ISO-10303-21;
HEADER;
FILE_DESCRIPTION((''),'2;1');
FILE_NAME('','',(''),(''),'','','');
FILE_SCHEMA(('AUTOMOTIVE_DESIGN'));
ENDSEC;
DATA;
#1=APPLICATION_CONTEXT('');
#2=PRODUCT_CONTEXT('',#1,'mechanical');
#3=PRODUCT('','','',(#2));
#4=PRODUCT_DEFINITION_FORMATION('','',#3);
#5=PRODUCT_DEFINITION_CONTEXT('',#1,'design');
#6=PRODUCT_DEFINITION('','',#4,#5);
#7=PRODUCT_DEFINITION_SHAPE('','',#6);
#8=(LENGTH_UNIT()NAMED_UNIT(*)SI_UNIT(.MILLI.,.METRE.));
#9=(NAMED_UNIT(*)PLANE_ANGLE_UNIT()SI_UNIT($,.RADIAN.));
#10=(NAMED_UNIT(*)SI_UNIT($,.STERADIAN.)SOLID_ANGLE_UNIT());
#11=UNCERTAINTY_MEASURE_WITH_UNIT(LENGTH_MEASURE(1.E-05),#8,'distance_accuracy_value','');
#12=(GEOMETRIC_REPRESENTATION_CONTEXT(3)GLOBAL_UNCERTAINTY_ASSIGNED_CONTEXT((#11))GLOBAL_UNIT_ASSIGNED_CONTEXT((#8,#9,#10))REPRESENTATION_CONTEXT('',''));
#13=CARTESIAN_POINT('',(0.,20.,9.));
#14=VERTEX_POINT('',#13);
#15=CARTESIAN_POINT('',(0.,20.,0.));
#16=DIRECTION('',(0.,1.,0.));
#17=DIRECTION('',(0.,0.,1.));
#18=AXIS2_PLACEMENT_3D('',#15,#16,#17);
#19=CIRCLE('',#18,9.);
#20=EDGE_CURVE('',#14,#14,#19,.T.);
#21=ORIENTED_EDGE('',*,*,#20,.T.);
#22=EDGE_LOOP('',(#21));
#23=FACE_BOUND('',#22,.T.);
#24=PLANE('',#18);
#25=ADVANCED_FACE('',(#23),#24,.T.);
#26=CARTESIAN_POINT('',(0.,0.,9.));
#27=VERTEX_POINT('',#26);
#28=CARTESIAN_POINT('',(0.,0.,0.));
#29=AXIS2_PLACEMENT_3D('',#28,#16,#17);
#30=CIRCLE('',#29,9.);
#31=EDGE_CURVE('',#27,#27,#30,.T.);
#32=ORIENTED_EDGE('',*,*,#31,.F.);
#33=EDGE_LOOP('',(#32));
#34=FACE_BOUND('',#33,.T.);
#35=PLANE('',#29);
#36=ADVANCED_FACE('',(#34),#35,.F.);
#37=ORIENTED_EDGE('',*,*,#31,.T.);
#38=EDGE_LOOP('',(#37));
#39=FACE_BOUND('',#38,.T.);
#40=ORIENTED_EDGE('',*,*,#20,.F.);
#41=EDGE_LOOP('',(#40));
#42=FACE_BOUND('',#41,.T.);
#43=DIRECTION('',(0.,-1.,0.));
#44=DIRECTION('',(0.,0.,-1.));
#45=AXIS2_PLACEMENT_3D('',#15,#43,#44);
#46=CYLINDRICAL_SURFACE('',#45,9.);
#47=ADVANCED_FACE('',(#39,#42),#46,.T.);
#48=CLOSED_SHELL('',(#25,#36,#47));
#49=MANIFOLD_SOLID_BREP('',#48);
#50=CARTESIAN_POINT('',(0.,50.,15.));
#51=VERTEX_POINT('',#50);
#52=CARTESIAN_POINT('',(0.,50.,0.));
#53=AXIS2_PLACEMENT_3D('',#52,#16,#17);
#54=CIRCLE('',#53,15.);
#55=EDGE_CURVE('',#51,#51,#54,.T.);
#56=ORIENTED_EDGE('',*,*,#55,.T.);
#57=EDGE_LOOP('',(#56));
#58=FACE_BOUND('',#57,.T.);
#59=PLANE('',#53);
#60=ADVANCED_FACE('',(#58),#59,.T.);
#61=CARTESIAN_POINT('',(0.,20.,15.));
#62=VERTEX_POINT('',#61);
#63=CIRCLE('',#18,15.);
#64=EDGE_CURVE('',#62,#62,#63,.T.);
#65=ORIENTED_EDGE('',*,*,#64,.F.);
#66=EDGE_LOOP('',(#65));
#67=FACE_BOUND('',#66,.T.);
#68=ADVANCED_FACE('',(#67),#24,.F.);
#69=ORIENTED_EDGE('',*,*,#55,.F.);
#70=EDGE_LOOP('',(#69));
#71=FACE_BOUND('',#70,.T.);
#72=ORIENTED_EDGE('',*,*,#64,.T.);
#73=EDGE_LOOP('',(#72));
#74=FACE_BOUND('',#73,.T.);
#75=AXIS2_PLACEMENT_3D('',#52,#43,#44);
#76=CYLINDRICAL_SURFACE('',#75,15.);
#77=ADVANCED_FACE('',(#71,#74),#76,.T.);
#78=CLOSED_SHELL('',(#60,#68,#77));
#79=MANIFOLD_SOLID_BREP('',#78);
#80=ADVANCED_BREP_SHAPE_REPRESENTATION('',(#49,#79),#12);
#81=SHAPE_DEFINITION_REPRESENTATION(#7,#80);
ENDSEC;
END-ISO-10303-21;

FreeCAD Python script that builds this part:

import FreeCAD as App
import Part
import Sketcher
Q = App.Units.Quantity

doc = App.newDocument("Part")
params = doc.addObject("Spreadsheet::Sheet", "Params")
for row, (alias, value) in enumerate([
    ("sketch1_diameter", "18 mm"),
    ("pad1_length", "20 mm"),
    ("sketch2_diameter", "30 mm"),
    ("pad2_length", "30 mm"),
], start=1):
    params.set(f"A{row}", alias)
    params.set(f"B{row}", "=" + value)
    params.setAlias(f"B{row}", alias)

body = doc.addObject("PartDesign::Body", "Body")

sketch1 = body.newObject("Sketcher::SketchObject", "Sketch")
sketch1.AttachmentSupport = (doc.getObject("XZ_Plane"), [""])
sketch1.MapMode = "FlatFace"
sketch1.addGeometry(Part.Circle(App.Vector(0, 0, 0), App.Vector(0, 0, 1), 9), False)
sketch1.addConstraint([
    Sketcher.Constraint("Coincident", 0, 3, -1, 1),
    Sketcher.Constraint("Diameter", 0, Q("18 mm")),
])
sketch1.setExpression("Constraints[1]", "Params.sketch1_diameter")
pad1 = body.newObject("PartDesign::Pad", "Pad")
pad1.Profile = sketch1
pad1.setExpression("Length", "Params.pad1_length")
pad1.Reversed = True
body2 = doc.addObject("PartDesign::Body", "Body001")

sketch2 = body2.newObject("Sketcher::SketchObject", "Sketch001")
sketch2.AttachmentSupport = (doc.getObject("XZ_Plane001"), [""])
sketch2.MapMode = "FlatFace"
sketch2.AttachmentOffset = App.Placement(App.Vector(0, 0, -20), App.Rotation())
sketch2.addGeometry(Part.Circle(App.Vector(0, 0, 0), App.Vector(0, 0, 1), 15), False)
sketch2.addConstraint([
    Sketcher.Constraint("Coincident", 0, 3, -1, 1),
    Sketcher.Constraint("Diameter", 0, Q("30 mm")),
])
sketch2.setExpression("Constraints[1]", "Params.sketch2_diameter")
pad2 = body2.newObject("PartDesign::Pad", "Pad001")
pad2.Profile = sketch2
pad2.setExpression("Length", "Params.pad2_length")
pad2.Reversed = True

doc.recompute()
